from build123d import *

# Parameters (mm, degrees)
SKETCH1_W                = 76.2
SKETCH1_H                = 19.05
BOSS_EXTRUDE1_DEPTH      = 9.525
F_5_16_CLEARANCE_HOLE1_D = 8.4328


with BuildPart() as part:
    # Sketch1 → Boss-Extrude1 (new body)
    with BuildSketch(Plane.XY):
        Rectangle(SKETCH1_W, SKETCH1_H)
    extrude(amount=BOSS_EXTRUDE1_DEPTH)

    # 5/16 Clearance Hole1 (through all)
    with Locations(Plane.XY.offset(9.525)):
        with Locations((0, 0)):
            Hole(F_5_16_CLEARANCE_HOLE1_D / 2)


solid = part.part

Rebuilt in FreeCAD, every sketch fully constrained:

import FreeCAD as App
import Part
import Sketcher

V = App.Vector
Q = App.Units.Quantity

doc = App.newDocument("Part")
params = doc.addObject("Spreadsheet::Sheet", "Params")
for row, (alias, value) in enumerate([
    ("sketch1_width", "3 in"),
    ("sketch1_height", "0.75 in"),
    ("pad1_length", "0.375 in"),
    ("sketch2_diameter", "0.332 in"),
    ("hole_diameter", "0.332 in"),
], start=1):
    params.set(f"A{row}", alias)
    params.set(f"B{row}", "=" + value)
    params.setAlias(f"B{row}", alias)

body = doc.addObject("PartDesign::Body", "Body")

sketch1 = doc.addObject("Sketcher::SketchObject", "Sketch")
body.addObject(sketch1)
sketch1.AttachmentSupport = (doc.XY_Plane, [""])
sketch1.MapMode = "FlatFace"
sketch1.addGeometry([
    Part.LineSegment(V(-38, 10, 0), V(-38, -10, 0)),
    Part.LineSegment(V(-38, -10, 0), V(38, -10, 0)),
    Part.LineSegment(V(38, -10, 0), V(38, 10, 0)),
    Part.LineSegment(V(38, 10, 0), V(-38, 10, 0)),
], False)
sketch1.addConstraint([
    Sketcher.Constraint("Coincident", 0, 2, 1, 1),
    Sketcher.Constraint("Coincident", 1, 2, 2, 1),
    Sketcher.Constraint("Coincident", 2, 2, 3, 1),
    Sketcher.Constraint("Coincident", 3, 2, 0, 1),
    Sketcher.Constraint("Vertical", 0),
    Sketcher.Constraint("Horizontal", 1),
    Sketcher.Constraint("Vertical", 2),
    Sketcher.Constraint("Horizontal", 3),
    Sketcher.Constraint("Symmetric", 0, 2, 2, 2, -1, 1),
    Sketcher.Constraint("DistanceX", 1, 1, 1, 2, Q("3 in")),
    Sketcher.Constraint("DistanceY", 0, 2, 0, 1, Q("0.75 in")),
])
sketch1.setExpression("Constraints[9]", "Params.sketch1_width")
sketch1.setExpression("Constraints[10]", "Params.sketch1_height")
pad1 = doc.addObject("PartDesign::Pad", "Pad")
body.addObject(pad1)
pad1.Profile = sketch1
pad1.setExpression("Length", "Params.pad1_length")

sketch2 = doc.addObject("Sketcher::SketchObject", "Sketch001")
body.addObject(sketch2)
sketch2.AttachmentSupport = (doc.XY_Plane, [""])
sketch2.MapMode = "FlatFace"
sketch2.AttachmentOffset = App.Placement(V(0, 0, 0.375 * 25.4), App.Rotation())
sketch2.addGeometry(Part.Circle(V(0, 0, 0), V(0, 0, 1), 4.2), False)
sketch2.addConstraint([
    Sketcher.Constraint("Coincident", 0, 3, -1, 1),
    Sketcher.Constraint("Diameter", 0, Q("0.332 in")),
])
sketch2.setExpression("Constraints[1]", "Params.sketch2_diameter")
doc.recompute()
hole = doc.addObject("PartDesign::Hole", "Hole")
body.addObject(hole)
hole.Profile = sketch2
hole.ThreadType = "None"
hole.setExpression("Diameter", "Params.hole_diameter")
hole.DepthType = "ThroughAll"

doc.recompute()
